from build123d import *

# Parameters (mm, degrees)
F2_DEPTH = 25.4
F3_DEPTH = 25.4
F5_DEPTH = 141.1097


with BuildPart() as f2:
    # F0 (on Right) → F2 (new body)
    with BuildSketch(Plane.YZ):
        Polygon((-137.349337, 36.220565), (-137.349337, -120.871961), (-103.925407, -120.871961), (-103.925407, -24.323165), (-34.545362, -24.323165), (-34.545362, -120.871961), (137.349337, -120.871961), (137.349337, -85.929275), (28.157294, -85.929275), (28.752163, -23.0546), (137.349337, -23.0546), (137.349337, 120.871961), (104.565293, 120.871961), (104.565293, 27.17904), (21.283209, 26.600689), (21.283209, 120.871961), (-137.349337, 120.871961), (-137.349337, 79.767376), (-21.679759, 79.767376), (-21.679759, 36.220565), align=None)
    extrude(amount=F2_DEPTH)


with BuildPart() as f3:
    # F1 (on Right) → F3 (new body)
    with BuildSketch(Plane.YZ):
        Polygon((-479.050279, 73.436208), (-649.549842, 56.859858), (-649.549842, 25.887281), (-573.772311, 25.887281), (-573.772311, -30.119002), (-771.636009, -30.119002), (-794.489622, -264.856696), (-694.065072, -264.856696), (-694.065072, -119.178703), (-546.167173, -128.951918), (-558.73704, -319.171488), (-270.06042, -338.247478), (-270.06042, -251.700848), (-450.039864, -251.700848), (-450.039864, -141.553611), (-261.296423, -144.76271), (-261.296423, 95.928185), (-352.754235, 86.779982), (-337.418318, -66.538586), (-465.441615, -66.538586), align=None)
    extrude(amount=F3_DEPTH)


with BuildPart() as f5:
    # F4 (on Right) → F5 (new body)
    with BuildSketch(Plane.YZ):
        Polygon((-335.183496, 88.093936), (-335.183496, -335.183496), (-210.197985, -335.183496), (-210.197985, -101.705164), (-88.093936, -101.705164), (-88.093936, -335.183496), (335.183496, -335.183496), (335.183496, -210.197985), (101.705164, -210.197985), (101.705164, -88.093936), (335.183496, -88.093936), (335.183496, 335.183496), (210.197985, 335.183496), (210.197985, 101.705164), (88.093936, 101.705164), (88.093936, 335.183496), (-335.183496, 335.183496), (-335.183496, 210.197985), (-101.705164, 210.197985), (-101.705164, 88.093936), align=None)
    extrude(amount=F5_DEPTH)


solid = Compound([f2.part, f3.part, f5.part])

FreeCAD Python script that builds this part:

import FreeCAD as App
import Part
import Sketcher

V = App.Vector
Q = App.Units.Quantity


def add_polygon(sketch, points):
    """Adds a closed chain of lines whose ends are joined by coincident constraints."""
    first, n = sketch.GeometryCount, len(points)
    for a, b in zip(points, points[1:] + points[:1]):
        sketch.addGeometry(Part.LineSegment(App.Vector(*a, 0), App.Vector(*b, 0)), False)
    for i in range(n):
        sketch.addConstraint(Sketcher.Constraint("Coincident", first + i, 2, first + (i + 1) % n, 1))

doc = App.newDocument("Part")
body = doc.addObject("PartDesign::Body", "Body")

# Sketch on YZ plane
sketch1 = body.newObject("Sketcher::SketchObject", "Sketch")
sketch1.AttachmentSupport = (doc.getObject("YZ_Plane"), [""])
sketch1.MapMode = "FlatFace"
add_polygon(sketch1, [(-137, 36), (-137, -121), (-104, -121), (-104, -24), (-35, -24), (-35, -121), (137, -121), (137, -86), (28, -86), (29, -23), (137, -23), (137, 121), (105, 121), (105, 27), (21, 27), (21, 121), (-137, 121), (-137, 80), (-22, 80), (-22, 36)])  # lines 0-19
sketch1.addConstraint(Sketcher.Constraint("Vertical", 0))
sketch1.addConstraint(Sketcher.Constraint("Horizontal", 1))
sketch1.addConstraint(Sketcher.Constraint("Vertical", 2))
sketch1.addConstraint(Sketcher.Constraint("Horizontal", 3))
sketch1.addConstraint(Sketcher.Constraint("Vertical", 4))
sketch1.addConstraint(Sketcher.Constraint("Horizontal", 5))
sketch1.addConstraint(Sketcher.Constraint("Vertical", 6))
sketch1.addConstraint(Sketcher.Constraint("Horizontal", 7))
sketch1.addConstraint(Sketcher.Constraint("Horizontal", 9))
sketch1.addConstraint(Sketcher.Constraint("Vertical", 10))
sketch1.addConstraint(Sketcher.Constraint("Horizontal", 11))
sketch1.addConstraint(Sketcher.Constraint("Vertical", 12))
sketch1.addConstraint(Sketcher.Constraint("Vertical", 14))
sketch1.addConstraint(Sketcher.Constraint("Horizontal", 15))
sketch1.addConstraint(Sketcher.Constraint("Vertical", 16))
sketch1.addConstraint(Sketcher.Constraint("Horizontal", 17))
sketch1.addConstraint(Sketcher.Constraint("Vertical", 18))
sketch1.addConstraint(Sketcher.Constraint("Horizontal", 19))
sketch1.addConstraint(Sketcher.Constraint("Symmetric", 0, 2, 10, 2, -1, 1))
sketch1.addConstraint(Sketcher.Constraint("Symmetric", 5, 2, 15, 2, -1, 1))
sketch1.addConstraint(Sketcher.Constraint("Symmetric", 0, 2, 5, 2, -2))
sketch1.addConstraint(Sketcher.Constraint("DistanceY", 10, 1, 10, 2, Q("5.6664 in")))
sketch1.addConstraint(Sketcher.Constraint("DistanceX", 5, 1, 5, 2, 171.894699))
sketch1.addConstraint(Sketcher.Constraint("DistanceX", 1, 1, 1, 2, 33.42393))
sketch1.addConstraint(Sketcher.Constraint("DistanceY", 12, 2, 12, 1, 93.692921))
sketch1.addConstraint(Sketcher.Constraint("DistanceY", 14, 1, 14, 2, 94.271272))
sketch1.addConstraint(Sketcher.Constraint("DistanceY", 18, 2, 18, 1, 43.546811))
sketch1.addConstraint(Sketcher.Constraint("DistanceY", 8, 2, -1, 1, 23.0546))
sketch1.addConstraint(Sketcher.Constraint("DistanceX", 1, 2, 7, 2, 132.082701))
sketch1.addConstraint(Sketcher.Constraint("DistanceX", 15, 2, 8, 2, 166.1015))
sketch1.addConstraint(Sketcher.Constraint("Distance", 8, 62.877489))
sketch1.addConstraint(Sketcher.Constraint("DistanceX", 3, 1, 3, 2, 69.380045))
sketch1.addConstraint(Sketcher.Constraint("DistanceX", 11, 2, 11, 1, 32.784044))
sketch1.addConstraint(Sketcher.Constraint("DistanceX", 15, 2, 15, 1, 158.632546))
sketch1.addConstraint(Sketcher.Constraint("DistanceX", 17, 1, 17, 2, 115.669578))
sketch1.addConstraint(Sketcher.Constraint("DistanceY", 0, 2, 0, 1, 157.092526))
sketch1.addConstraint(Sketcher.Constraint("DistanceY", 2, 1, 2, 2, 96.548796))
pad1 = body.newObject("PartDesign::Pad", "Pad")
pad1.Profile = sketch1
pad1.Length = Q("1 in")
body2 = doc.addObject("PartDesign::Body", "Body001")

# Sketch on YZ plane
sketch2 = body2.newObject("Sketcher::SketchObject", "Sketch001")
sketch2.AttachmentSupport = (doc.getObject("YZ_Plane001"), [""])
sketch2.MapMode = "FlatFace"
add_polygon(sketch2, [(-479.050279, 73.436208), (-649.549842, 56.859858), (-649.549842, 25.887281), (-573.772311, 25.887281), (-573.772311, -30.119002), (-771.636009, -30.119002), (-794.489622, -264.856696), (-694.065072, -264.856696), (-694.065072, -119.178703), (-546.167173, -128.951918), (-558.73704, -319.171488), (-270.06042, -338.247478), (-270.06042, -251.700848), (-450.039864, -251.700848), (-450.039864, -141.553611), (-261.296423, -144.76271), (-261.296423, 95.928185), (-352.754235, 86.779982), (-337.418318, -66.538586), (-465.441615, -66.538586)])  # lines 0-19
sketch2.addConstraint(Sketcher.Constraint("Vertical", 1))
sketch2.addConstraint(Sketcher.Constraint("Horizontal", 2))
sketch2.addConstraint(Sketcher.Constraint("Vertical", 3))
sketch2.addConstraint(Sketcher.Constraint("Horizontal", 4))
sketch2.addConstraint(Sketcher.Constraint("Horizontal", 6))
sketch2.addConstraint(Sketcher.Constraint("Vertical", 7))
sketch2.addConstraint(Sketcher.Constraint("Vertical", 11))
sketch2.addConstraint(Sketcher.Constraint("Horizontal", 12))
sketch2.addConstraint(Sketcher.Constraint("Vertical", 13))
sketch2.addConstraint(Sketcher.Constraint("Vertical", 15))
sketch2.addConstraint(Sketcher.Constraint("Horizontal", 18))
sketch2.addConstraint(Sketcher.Constraint("Perpendicular", 8, 9))
sketch2.addConstraint(Sketcher.Constraint("Perpendicular", 9, 10))
sketch2.addConstraint(Sketcher.Constraint("Perpendicular", 16, 17))
sketch2.addConstraint(Sketcher.Constraint("Perpendicular", 0, 19))
sketch2.addConstraint(Sketcher.Constraint("DistanceX", 4, 2, 4, 1, 197.863698))
sketch2.addConstraint(Sketcher.Constraint("DistanceX", 10, 2, -1, 1, Q("10.6323 in")))
sketch2.addConstraint(Sketcher.Constraint("DistanceY", -1, 1, 15, 2, Q("3.7767002 in")))
sketch2.addConstraint(Sketcher.Constraint("DistanceX", 2, 1, 2, 2, 75.777531))
sketch2.addConstraint(Sketcher.Constraint("DistanceX", 6, 1, 6, 2, 100.42455))
sketch2.addConstraint(Sketcher.Constraint("DistanceY", 11, 1, 11, 2, 86.54663))
sketch2.addConstraint(Sketcher.Constraint("DistanceY", 3, 2, -1, 1, 30.119002))
sketch2.addConstraint(Sketcher.Constraint("DistanceY", 7, 2, 4, 2, 89.059701))
sketch2.addConstraint(Sketcher.Constraint("DistanceX", 7, 2, 8, 2, 147.897899))
sketch2.addConstraint(Sketcher.Constraint("DistanceY", 8, 2, 2, 2, 154.839199))
sketch2.addConstraint(Sketcher.Constraint("DistanceY", 14, 2, 13, 2, 3.209099))
sketch2.addConstraint(Sketcher.Constraint("DistanceY", 2, 2, 16, 2, 60.892701))
sketch2.addConstraint(Sketcher.Constraint("Distance", 8, 148.220458))
sketch2.addConstraint(Sketcher.Constraint("Distance", 9, 190.634431))
sketch2.addConstraint(Sketcher.Constraint("Distance", 14, 188.77072))
sketch2.addConstraint(Sketcher.Constraint("Distance", 19, 140.634771))
sketch2.addConstraint(Sketcher.Constraint("DistanceX", 12, 2, 12, 1, 179.979444))
sketch2.addConstraint(Sketcher.Constraint("DistanceX", 18, 2, 18, 1, 128.023297))
sketch2.addConstraint(Sketcher.Constraint("DistanceY", 1, 2, 1, 1, 30.972577))
sketch2.addConstraint(Sketcher.Constraint("DistanceY", 7, 1, 7, 2, 145.677993))
sketch2.addConstraint(Sketcher.Constraint("DistanceY", 13, 1, 13, 2, 110.147237))
sketch2.addConstraint(Sketcher.Constraint("DistanceY", 15, 1, 15, 2, 240.690895))
sketch2.addConstraint(Sketcher.Constraint("DistanceX", 0, 2, -1, 1, 649.549842))
sketch2.addConstraint(Sketcher.Constraint("DistanceX", 17, 2, -1, 1, 337.418318))
sketch2.addConstraint(Sketcher.Constraint("DistanceX", 19, 2, -1, 1, 479.050279))
pad2 = body2.newObject("PartDesign::Pad", "Pad001")
pad2.Profile = sketch2
pad2.Length = Q("1 in")
body3 = doc.addObject("PartDesign::Body", "Body002")

# Sketch on YZ plane
sketch3 = body3.newObject("Sketcher::SketchObject", "Sketch002")
sketch3.AttachmentSupport = (doc.getObject("YZ_Plane002"), [""])
sketch3.MapMode = "FlatFace"
add_polygon(sketch3, [(-335, 88), (-335, -335), (-210, -335), (-210, -102), (-88, -102), (-88, -335), (335, -335), (335, -210), (102, -210), (102, -88), (335, -88), (335, 335), (210, 335), (210, 102), (88, 102), (88, 335), (-335, 335), (-335, 210), (-102, 210), (-102, 88)])  # lines 0-19
sketch3.addConstraint(Sketcher.Constraint("Vertical", 0))
sketch3.addConstraint(Sketcher.Constraint("Horizontal", 1))
sketch3.addConstraint(Sketcher.Constraint("Vertical", 2))
sketch3.addConstraint(Sketcher.Constraint("Horizontal", 3))
sketch3.addConstraint(Sketcher.Constraint("Vertical", 4))
sketch3.addConstraint(Sketcher.Constraint("Horizontal", 5))
sketch3.addConstraint(Sketcher.Constraint("Vertical", 6))
sketch3.addConstraint(Sketcher.Constraint("Horizontal", 7))
sketch3.addConstraint(Sketcher.Constraint("Vertical", 8))
sketch3.addConstraint(Sketcher.Constraint("Horizontal", 9))
sketch3.addConstraint(Sketcher.Constraint("Vertical", 10))
sketch3.addConstraint(Sketcher.Constraint("Horizontal", 11))
sketch3.addConstraint(Sketcher.Constraint("Vertical", 12))
sketch3.addConstraint(Sketcher.Constraint("Horizontal", 13))
sketch3.addConstraint(Sketcher.Constraint("Vertical", 14))
sketch3.addConstraint(Sketcher.Constraint("Horizontal", 15))
sketch3.addConstraint(Sketcher.Constraint("Vertical", 16))
sketch3.addConstraint(Sketcher.Constraint("Horizontal", 17))
sketch3.addConstraint(Sketcher.Constraint("Vertical", 18))
sketch3.addConstraint(Sketcher.Constraint("Horizontal", 19))
sketch3.addConstraint(Sketcher.Constraint("Symmetric", 0, 2, 10, 2, -1, 1))
sketch3.addConstraint(Sketcher.Constraint("Symmetric", 2, 2, 12, 2, -1, 1))
sketch3.addConstraint(Sketcher.Constraint("Symmetric", 4, 2, 14, 2, -1, 1))
sketch3.addConstraint(Sketcher.Constraint("Symmetric", 6, 2, 16, 2, -1, 1))
sketch3.addConstraint(Sketcher.Constraint("Symmetric", 8, 2, 18, 2, -1, 1))
sketch3.addConstraint(Sketcher.Constraint("Symmetric", 0, 2, 5, 2, -2))
sketch3.addConstraint(Sketcher.Constraint("Equal", 15, 0))
sketch3.addConstraint(Sketcher.Constraint("Equal", 19, 2))
sketch3.addConstraint(Sketcher.Constraint("Equal", 11, 6))
sketch3.addConstraint(Sketcher.Constraint("Equal", 13, 8))
sketch3.addConstraint(Sketcher.Constraint("DistanceX", 1, 1, 1, 2, 124.985511))
sketch3.addConstraint(Sketcher.Constraint("DistanceX", 3, 1, 3, 2, 122.104049))
sketch3.addConstraint(Sketcher.Constraint("DistanceX", 5, 1, 5, 2, 423.277432))
sketch3.addConstraint(Sketcher.Constraint("DistanceX", 7, 2, 7, 1, 233.478332))
pad3 = body3.newObject("PartDesign::Pad", "Pad002")
pad3.Profile = sketch3
pad3.Length = Q("5.5555 in")

doc.recompute()
